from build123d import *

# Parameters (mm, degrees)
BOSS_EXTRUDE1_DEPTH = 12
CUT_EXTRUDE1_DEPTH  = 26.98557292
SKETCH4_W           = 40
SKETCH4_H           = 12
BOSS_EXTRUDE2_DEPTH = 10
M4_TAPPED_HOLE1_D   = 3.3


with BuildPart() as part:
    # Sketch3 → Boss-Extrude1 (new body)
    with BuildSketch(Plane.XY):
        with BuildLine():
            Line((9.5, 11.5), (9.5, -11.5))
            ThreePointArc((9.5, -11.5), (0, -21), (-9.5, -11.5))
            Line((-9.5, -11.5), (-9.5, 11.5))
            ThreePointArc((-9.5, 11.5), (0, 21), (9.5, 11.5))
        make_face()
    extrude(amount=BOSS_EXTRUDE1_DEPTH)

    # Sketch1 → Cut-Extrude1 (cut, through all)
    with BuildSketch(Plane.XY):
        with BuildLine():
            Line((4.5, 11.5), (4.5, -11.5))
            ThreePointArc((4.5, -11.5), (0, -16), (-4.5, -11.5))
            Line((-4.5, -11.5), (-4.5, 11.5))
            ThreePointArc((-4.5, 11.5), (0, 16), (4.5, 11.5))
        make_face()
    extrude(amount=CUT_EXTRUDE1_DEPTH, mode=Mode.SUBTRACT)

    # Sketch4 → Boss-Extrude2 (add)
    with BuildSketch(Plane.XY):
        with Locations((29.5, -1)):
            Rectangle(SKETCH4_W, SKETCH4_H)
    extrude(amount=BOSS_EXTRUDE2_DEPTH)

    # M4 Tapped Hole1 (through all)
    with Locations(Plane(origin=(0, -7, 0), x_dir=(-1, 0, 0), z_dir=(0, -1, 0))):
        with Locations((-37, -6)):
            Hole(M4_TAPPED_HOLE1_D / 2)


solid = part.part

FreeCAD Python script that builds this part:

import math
import FreeCAD as App
import Part
import Sketcher
Q = App.Units.Quantity

doc = App.newDocument("Part")
body = doc.addObject("PartDesign::Body", "Body")

sketch1 = body.newObject("Sketcher::SketchObject", "Sketch")
sketch1.AttachmentSupport = (doc.getObject("XY_Plane"), [""])
sketch1.MapMode = "FlatFace"
sketch1.addGeometry([
    Part.LineSegment(App.Vector(10, -12, 0), App.Vector(10, 12, 0)),
    Part.ArcOfCircle(Part.Circle(App.Vector(0, 12, 0), App.Vector(0, 0, 1), 10), math.radians(0), math.radians(180)),
    Part.LineSegment(App.Vector(-10, 12, 0), App.Vector(-10, -12, 0)),
    Part.ArcOfCircle(Part.Circle(App.Vector(0, -12, 0), App.Vector(0, 0, 1), 10), math.radians(180), math.radians(360)),
], False)
sketch1.addConstraint([
    Sketcher.Constraint("Tangent", 0, 2, 1, 1),
    Sketcher.Constraint("Tangent", 1, 2, 2, 1),
    Sketcher.Constraint("Tangent", 2, 2, 3, 1),
    Sketcher.Constraint("Tangent", 3, 2, 0, 1),
    Sketcher.Constraint("Vertical", 0),
    Sketcher.Constraint("Vertical", 2),
    Sketcher.Constraint("Symmetric", 1, 3, 3, 3, -1, 1),
    Sketcher.Constraint("Radius", 1, Q("9.5 mm")),
    Sketcher.Constraint("DistanceY", 0, 1, 0, 2, Q("23 mm")),
])
pad1 = body.newObject("PartDesign::Pad", "Pad")
pad1.Profile = sketch1
pad1.Length = 12

sketch2 = body.newObject("Sketcher::SketchObject", "Sketch001")
sketch2.AttachmentSupport = (doc.getObject("XY_Plane"), [""])
sketch2.MapMode = "FlatFace"
sketch2.addGeometry([
    Part.LineSegment(App.Vector(4.5, -11.5, 0), App.Vector(4.5, 11.5, 0)),
    Part.ArcOfCircle(Part.Circle(App.Vector(0, 11.5, 0), App.Vector(0, 0, 1), 4.5), math.radians(0), math.radians(180)),
    Part.LineSegment(App.Vector(-4.5, 11.5, 0), App.Vector(-4.5, -11.5, 0)),
    Part.ArcOfCircle(Part.Circle(App.Vector(0, -11.5, 0), App.Vector(0, 0, 1), 4.5), math.radians(180), math.radians(360)),
], False)
sketch2.addConstraint([
    Sketcher.Constraint("Tangent", 0, 2, 1, 1),
    Sketcher.Constraint("Tangent", 1, 2, 2, 1),
    Sketcher.Constraint("Tangent", 2, 2, 3, 1),
    Sketcher.Constraint("Tangent", 3, 2, 0, 1),
    Sketcher.Constraint("Vertical", 0),
    Sketcher.Constraint("Vertical", 2),
    Sketcher.Constraint("Symmetric", 1, 3, 3, 3, -1, 1),
    Sketcher.Constraint("Radius", 1, Q("4.5 mm")),
    Sketcher.Constraint("DistanceY", 0, 1, 0, 2, Q("23 mm")),
])
pocket1 = body.newObject("PartDesign::Pocket", "Pocket")
pocket1.Profile = sketch2
pocket1.Type = "ThroughAll"
pocket1.Reversed = True

sketch3 = body.newObject("Sketcher::SketchObject", "Sketch002")
sketch3.AttachmentSupport = (doc.getObject("XY_Plane"), [""])
sketch3.MapMode = "FlatFace"
sketch3.addGeometry([
    Part.LineSegment(App.Vector(10, 5, 0), App.Vector(10, -7, 0)),
    Part.LineSegment(App.Vector(10, -7, 0), App.Vector(50, -7, 0)),
    Part.LineSegment(App.Vector(50, -7, 0), App.Vector(50, 5, 0)),
    Part.LineSegment(App.Vector(50, 5, 0), App.Vector(10, 5, 0)),
], False)
sketch3.addConstraint([
    Sketcher.Constraint("Coincident", 0, 2, 1, 1),
    Sketcher.Constraint("Coincident", 1, 2, 2, 1),
    Sketcher.Constraint("Coincident", 2, 2, 3, 1),
    Sketcher.Constraint("Coincident", 3, 2, 0, 1),
    Sketcher.Constraint("Vertical", 0),
    Sketcher.Constraint("Horizontal", 1),
    Sketcher.Constraint("Vertical", 2),
    Sketcher.Constraint("Horizontal", 3),
    Sketcher.Constraint("DistanceX", 1, 1, 1, 2, Q("40 mm")),
    Sketcher.Constraint("DistanceY", 0, 2, 0, 1, Q("12 mm")),
    Sketcher.Constraint("DistanceY", 0, 2, -1, 1, Q("7 mm")),
    Sketcher.Constraint("DistanceX", -1, 1, 0, 2, Q("9.5 mm")),
])
pad2 = body.newObject("PartDesign::Pad", "Pad001")
pad2.Profile = sketch3
pad2.Length = 10

sketch4 = body.newObject("Sketcher::SketchObject", "Sketch003")
sketch4.AttachmentSupport = (doc.getObject("XZ_Plane"), [""])
sketch4.MapMode = "FlatFace"
sketch4.AttachmentOffset = App.Placement(App.Vector(0, 0, 7), App.Rotation())
sketch4.addGeometry(Part.Circle(App.Vector(37, 6, 0), App.Vector(0, 0, 1), 1.6), False)
sketch4.addConstraint([
    Sketcher.Constraint("Diameter", 0, Q("3.3 mm")),
    Sketcher.Constraint("DistanceX", -1, 1, 0, 3, Q("37 mm")),
    Sketcher.Constraint("DistanceY", -1, 1, 0, 3, Q("6 mm")),
])
doc.recompute()
hole = body.newObject("PartDesign::Hole", "Hole")
hole.Profile = sketch4
hole.ThreadType = "None"
hole.Diameter = 3.3
hole.DepthType = "ThroughAll"

doc.recompute()
